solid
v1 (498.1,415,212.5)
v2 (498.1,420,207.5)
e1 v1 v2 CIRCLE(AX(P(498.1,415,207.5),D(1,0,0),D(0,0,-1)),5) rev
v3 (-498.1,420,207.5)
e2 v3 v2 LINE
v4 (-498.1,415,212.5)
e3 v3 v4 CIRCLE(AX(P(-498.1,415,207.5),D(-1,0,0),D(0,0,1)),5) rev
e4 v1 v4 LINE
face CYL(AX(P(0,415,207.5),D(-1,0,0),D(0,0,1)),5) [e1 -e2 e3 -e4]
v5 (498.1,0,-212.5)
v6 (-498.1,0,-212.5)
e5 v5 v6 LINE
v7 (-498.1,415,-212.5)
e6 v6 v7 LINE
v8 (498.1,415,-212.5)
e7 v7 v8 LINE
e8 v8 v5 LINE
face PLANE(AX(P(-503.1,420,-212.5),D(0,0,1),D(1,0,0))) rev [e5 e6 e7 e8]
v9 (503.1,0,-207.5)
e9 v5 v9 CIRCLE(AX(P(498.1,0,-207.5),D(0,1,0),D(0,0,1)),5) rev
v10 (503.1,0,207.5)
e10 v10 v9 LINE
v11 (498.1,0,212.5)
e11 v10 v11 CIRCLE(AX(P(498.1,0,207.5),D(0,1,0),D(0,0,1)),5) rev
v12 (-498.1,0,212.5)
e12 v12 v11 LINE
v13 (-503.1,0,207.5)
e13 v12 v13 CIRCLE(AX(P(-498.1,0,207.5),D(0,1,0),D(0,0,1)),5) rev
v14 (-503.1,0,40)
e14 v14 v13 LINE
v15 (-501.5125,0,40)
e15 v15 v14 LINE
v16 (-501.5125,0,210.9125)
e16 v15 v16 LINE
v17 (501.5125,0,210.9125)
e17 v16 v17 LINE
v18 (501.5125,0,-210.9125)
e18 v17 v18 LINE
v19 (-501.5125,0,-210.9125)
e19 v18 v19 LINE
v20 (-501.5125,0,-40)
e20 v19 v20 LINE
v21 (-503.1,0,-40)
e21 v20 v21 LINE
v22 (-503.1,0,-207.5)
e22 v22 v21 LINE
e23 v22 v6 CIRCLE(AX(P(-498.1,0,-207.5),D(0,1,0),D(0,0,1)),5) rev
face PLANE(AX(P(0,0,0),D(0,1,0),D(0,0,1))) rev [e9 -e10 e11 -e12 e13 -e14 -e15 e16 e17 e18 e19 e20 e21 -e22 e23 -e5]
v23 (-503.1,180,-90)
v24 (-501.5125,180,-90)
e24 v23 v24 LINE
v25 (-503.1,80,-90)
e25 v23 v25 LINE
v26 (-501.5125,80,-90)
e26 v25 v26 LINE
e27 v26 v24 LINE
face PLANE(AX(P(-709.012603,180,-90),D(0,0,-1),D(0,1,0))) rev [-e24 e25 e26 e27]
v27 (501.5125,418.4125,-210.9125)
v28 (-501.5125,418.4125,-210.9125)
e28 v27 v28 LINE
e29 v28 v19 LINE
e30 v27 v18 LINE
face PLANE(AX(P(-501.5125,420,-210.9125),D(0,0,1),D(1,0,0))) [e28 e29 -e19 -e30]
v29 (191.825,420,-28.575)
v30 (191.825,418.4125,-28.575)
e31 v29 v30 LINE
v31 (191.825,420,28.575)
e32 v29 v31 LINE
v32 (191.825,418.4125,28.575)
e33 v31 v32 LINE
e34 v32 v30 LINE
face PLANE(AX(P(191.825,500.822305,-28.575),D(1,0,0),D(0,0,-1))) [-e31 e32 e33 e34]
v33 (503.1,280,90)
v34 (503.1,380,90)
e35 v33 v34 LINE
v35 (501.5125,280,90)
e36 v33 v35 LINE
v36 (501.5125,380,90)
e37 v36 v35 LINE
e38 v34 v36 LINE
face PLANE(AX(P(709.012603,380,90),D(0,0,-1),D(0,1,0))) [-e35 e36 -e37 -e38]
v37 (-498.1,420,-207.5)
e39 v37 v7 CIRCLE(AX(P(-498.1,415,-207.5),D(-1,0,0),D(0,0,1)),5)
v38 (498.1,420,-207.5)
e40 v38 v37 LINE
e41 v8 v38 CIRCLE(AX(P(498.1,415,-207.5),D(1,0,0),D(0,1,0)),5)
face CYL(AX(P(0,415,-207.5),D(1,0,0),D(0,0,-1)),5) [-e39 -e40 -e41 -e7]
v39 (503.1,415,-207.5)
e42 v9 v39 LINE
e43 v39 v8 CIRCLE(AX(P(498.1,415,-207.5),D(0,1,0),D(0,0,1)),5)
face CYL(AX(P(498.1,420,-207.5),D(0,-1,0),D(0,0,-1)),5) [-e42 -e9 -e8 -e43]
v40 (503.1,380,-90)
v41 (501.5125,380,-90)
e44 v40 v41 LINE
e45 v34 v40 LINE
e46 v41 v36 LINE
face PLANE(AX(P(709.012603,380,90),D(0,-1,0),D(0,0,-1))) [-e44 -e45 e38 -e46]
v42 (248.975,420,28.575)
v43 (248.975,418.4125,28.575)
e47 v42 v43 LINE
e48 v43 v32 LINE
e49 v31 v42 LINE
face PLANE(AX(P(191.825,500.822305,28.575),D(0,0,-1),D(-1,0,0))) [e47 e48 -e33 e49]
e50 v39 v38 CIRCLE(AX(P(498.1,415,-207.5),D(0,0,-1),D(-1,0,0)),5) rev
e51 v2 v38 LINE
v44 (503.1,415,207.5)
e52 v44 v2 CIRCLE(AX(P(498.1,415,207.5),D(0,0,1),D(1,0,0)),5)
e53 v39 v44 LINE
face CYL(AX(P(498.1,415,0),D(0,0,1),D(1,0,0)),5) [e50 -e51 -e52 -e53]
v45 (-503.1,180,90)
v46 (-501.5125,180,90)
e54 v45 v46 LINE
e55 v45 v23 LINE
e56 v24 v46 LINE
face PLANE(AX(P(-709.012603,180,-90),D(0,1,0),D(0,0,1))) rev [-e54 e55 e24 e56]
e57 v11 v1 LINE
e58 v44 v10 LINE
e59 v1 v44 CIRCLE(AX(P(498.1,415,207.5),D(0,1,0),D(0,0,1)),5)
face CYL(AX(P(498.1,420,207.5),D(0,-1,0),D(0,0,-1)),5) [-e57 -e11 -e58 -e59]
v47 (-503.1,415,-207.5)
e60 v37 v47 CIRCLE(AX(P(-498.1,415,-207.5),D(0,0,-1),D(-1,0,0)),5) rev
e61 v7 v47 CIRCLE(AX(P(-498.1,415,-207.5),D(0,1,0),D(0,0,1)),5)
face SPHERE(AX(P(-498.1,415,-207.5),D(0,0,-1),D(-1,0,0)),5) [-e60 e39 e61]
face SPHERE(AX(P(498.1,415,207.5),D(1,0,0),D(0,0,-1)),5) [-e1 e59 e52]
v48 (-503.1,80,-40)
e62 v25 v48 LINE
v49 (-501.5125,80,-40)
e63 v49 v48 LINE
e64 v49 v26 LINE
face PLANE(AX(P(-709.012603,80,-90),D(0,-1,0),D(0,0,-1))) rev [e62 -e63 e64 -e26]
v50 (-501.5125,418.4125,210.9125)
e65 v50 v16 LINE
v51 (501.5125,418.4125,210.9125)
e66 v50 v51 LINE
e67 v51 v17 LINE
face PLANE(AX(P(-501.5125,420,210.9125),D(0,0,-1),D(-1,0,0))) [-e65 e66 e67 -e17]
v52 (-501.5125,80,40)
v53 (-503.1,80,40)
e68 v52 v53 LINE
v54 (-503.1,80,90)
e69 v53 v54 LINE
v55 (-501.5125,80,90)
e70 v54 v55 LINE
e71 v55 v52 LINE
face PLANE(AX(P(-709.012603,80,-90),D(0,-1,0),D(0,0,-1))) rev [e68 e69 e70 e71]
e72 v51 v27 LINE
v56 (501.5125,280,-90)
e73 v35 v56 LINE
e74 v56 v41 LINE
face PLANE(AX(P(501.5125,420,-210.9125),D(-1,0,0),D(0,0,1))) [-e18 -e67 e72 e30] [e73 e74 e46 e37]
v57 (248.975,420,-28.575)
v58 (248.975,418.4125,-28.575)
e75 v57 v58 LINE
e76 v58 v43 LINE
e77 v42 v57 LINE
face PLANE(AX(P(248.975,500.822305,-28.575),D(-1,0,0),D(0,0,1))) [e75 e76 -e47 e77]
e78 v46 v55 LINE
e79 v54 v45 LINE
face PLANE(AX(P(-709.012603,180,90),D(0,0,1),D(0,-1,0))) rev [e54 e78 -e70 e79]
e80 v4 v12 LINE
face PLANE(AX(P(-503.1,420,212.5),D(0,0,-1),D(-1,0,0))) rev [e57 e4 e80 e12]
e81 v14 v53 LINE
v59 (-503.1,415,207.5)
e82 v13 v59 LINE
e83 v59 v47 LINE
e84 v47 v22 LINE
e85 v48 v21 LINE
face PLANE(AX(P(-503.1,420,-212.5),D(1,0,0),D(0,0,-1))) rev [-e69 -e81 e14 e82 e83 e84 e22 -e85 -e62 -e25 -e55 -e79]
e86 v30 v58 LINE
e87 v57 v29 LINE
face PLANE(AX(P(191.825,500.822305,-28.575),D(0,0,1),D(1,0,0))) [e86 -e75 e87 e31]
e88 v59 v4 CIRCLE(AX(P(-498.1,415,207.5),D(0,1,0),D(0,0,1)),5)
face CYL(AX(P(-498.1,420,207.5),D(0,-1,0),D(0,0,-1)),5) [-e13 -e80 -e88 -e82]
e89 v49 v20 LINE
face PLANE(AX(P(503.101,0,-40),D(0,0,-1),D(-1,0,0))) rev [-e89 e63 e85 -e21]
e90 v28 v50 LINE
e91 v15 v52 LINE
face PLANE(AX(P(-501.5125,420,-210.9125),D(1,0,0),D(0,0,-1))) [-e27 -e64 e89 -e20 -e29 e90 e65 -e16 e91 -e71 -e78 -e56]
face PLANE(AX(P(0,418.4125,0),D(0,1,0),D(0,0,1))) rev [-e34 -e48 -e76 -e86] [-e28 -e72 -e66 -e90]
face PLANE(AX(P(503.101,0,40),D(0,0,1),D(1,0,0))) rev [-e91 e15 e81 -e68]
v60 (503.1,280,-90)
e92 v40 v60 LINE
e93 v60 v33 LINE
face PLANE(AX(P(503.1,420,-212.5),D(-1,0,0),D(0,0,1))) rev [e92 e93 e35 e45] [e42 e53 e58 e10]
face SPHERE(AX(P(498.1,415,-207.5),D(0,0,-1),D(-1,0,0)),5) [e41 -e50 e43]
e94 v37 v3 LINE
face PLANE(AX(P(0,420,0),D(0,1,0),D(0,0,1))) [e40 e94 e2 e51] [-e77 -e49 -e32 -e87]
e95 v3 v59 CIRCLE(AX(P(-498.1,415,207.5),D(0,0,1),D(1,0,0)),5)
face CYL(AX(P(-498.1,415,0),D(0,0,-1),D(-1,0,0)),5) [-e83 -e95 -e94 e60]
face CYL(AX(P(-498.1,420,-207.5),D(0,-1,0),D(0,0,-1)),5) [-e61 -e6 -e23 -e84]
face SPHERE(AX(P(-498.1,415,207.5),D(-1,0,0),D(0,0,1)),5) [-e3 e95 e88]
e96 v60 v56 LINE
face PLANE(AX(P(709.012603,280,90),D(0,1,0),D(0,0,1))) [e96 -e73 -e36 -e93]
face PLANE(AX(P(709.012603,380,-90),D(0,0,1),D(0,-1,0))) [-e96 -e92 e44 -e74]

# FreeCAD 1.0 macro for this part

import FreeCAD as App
import Part
import Sketcher
from FreeCAD import Vector


def edges_at(feature, points):
    """Names of the edges that pass closest to the given points."""
    edges = feature.Shape.Edges
    near = lambda p: min(range(len(edges)), key=lambda i: edges[i].distToShape(Part.Vertex(*p))[0])
    return sorted({f"Edge{near(p) + 1}" for p in points})


def add_polygon(sketch, points):
    """Adds a closed chain of lines whose ends are joined by coincident constraints."""
    first, n = sketch.GeometryCount, len(points)
    for a, b in zip(points, points[1:] + points[:1]):
        sketch.addGeometry(Part.LineSegment(App.Vector(*a, 0), App.Vector(*b, 0)), False)
    for i in range(n):
        sketch.addConstraint(Sketcher.Constraint("Coincident", first + i, 2, first + (i + 1) % n, 1))

doc = App.newDocument("Part")
body = doc.addObject("PartDesign::Body", "Body")

# Sketch on XZ plane
sketch1 = body.newObject("Sketcher::SketchObject", "Sketch")
sketch1.AttachmentSupport = (doc.getObject("XZ_Plane"), [""])
sketch1.MapMode = "FlatFace"
add_polygon(sketch1, [(-503, -212), (-503, 212), (503, 212), (503, -212)])  # lines 0-3
add_polygon(sketch1, [(502, 211), (-502, 211), (-502, -211), (502, -211)])  # lines 4-7
sketch1.addConstraint(Sketcher.Constraint("Vertical", 0))
sketch1.addConstraint(Sketcher.Constraint("Horizontal", 1))
sketch1.addConstraint(Sketcher.Constraint("Vertical", 2))
sketch1.addConstraint(Sketcher.Constraint("Horizontal", 3))
sketch1.addConstraint(Sketcher.Constraint("Horizontal", 4))
sketch1.addConstraint(Sketcher.Constraint("Vertical", 5))
sketch1.addConstraint(Sketcher.Constraint("Horizontal", 6))
sketch1.addConstraint(Sketcher.Constraint("Vertical", 7))
sketch1.addConstraint(Sketcher.Constraint("Symmetric", 0, 2, 2, 2, -1, 1))
sketch1.addConstraint(Sketcher.Constraint("Symmetric", 4, 2, 6, 2, -1, 1))
sketch1.addConstraint(Sketcher.Constraint("DistanceY", 0, 1, 0, 2, 425.0))
sketch1.addConstraint(Sketcher.Constraint("DistanceX", 1, 1, 1, 2, 1006.2))
sketch1.addConstraint(Sketcher.Constraint("DistanceX", 4, 2, 4, 1, 1003.025))
sketch1.addConstraint(Sketcher.Constraint("DistanceY", 5, 2, 5, 1, 421.825))
pad1 = body.newObject("PartDesign::Pad", "Pad")
pad1.Profile = sketch1
pad1.Length = 420
pad1.Reversed = True

# Sketch on XZ plane
sketch2 = body.newObject("Sketcher::SketchObject", "Sketch001")
sketch2.AttachmentSupport = (doc.getObject("XZ_Plane"), [""])
sketch2.MapMode = "FlatFace"
sketch2.AttachmentOffset = App.Placement(Vector(0, 0, -420), App.Rotation())
add_polygon(sketch2, [(-503, -212), (-503, 212), (503, 212), (503, -212)])  # lines 0-3
sketch2.addConstraint(Sketcher.Constraint("Vertical", 0))
sketch2.addConstraint(Sketcher.Constraint("Horizontal", 1))
sketch2.addConstraint(Sketcher.Constraint("Vertical", 2))
sketch2.addConstraint(Sketcher.Constraint("Horizontal", 3))
sketch2.addConstraint(Sketcher.Constraint("Symmetric", 0, 2, 2, 2, -1, 1))
sketch2.addConstraint(Sketcher.Constraint("DistanceY", 0, 1, 0, 2, 425.0))
sketch2.addConstraint(Sketcher.Constraint("DistanceX", 1, 1, 1, 2, 1006.2))
pad2 = body.newObject("PartDesign::Pad", "Pad001")
pad2.Profile = sketch2
pad2.Length = 1.5875
doc.recompute()

fillet = body.newObject("PartDesign::Fillet", "Fillet")
fillet.Base = (pad2, edges_at(pad2, [
    (-503.1, 420, 0),
    (0, 420, 212.5),
    (503.1, 420, 0),
    (503.1, 210, 212.5),
    (-503.1, 210, 212.5),
    (-503.1, 210, -212.5),
    (503.1, 210, -212.5),
    (0, 420, -212.5),
]))
fillet.Radius = 5

# Sketch on YZ plane
sketch3 = body.newObject("Sketcher::SketchObject", "Sketch002")
sketch3.AttachmentSupport = (doc.getObject("YZ_Plane"), [""])
sketch3.MapMode = "FlatFace"
sketch3.AttachmentOffset = App.Placement(Vector(0, 0, -503.1), App.Rotation())
add_polygon(sketch3, [(80, -40), (0, -40), (0, 40), (80, 40)])  # lines 0-3
sketch3.addConstraint(Sketcher.Constraint("Horizontal", 0))
sketch3.addConstraint(Sketcher.Constraint("Vertical", 1))
sketch3.addConstraint(Sketcher.Constraint("Horizontal", 2))
sketch3.addConstraint(Sketcher.Constraint("Vertical", 3))
sketch3.addConstraint(Sketcher.Constraint("Symmetric", 0, 2, 1, 2, -1, 1))
sketch3.addConstraint(Sketcher.Constraint("Equal", 2, 1))
sketch3.addConstraint(Sketcher.Constraint("DistanceX", 0, 2, 0, 1, 80.0))
pocket1 = body.newObject("PartDesign::Pocket", "Pocket")
pocket1.Profile = sketch3
pocket1.Type = "UpToFirst"
pocket1.Reversed = True

# Sketch on XZ plane
sketch4 = body.newObject("Sketcher::SketchObject", "Sketch003")
sketch4.AttachmentSupport = (doc.getObject("XZ_Plane"), [""])
sketch4.MapMode = "FlatFace"
add_polygon(sketch4, [(192, -29), (192, 29), (249, 29), (249, -29)])  # lines 0-3
sketch4.addConstraint(Sketcher.Constraint("Vertical", 0))
sketch4.addConstraint(Sketcher.Constraint("Horizontal", 1))
sketch4.addConstraint(Sketcher.Constraint("Vertical", 2))
sketch4.addConstraint(Sketcher.Constraint("Horizontal", 3))
sketch4.addConstraint(Sketcher.Constraint("Equal", 3, 0))
sketch4.addConstraint(Sketcher.Constraint("DistanceX", 1, 1, 1, 2, 57.15))
sketch4.addConstraint(Sketcher.Constraint("DistanceX", -1, 1, 0, 2, 191.825))
sketch4.addConstraint(Sketcher.Constraint("DistanceY", -1, 1, 0, 2, 28.575))
pocket2 = body.newObject("PartDesign::Pocket", "Pocket001")
pocket2.Profile = sketch4
pocket2.Length = 420

# Sketch on YZ plane
sketch5 = body.newObject("Sketcher::SketchObject", "Sketch004")
sketch5.AttachmentSupport = (doc.getObject("YZ_Plane"), [""])
sketch5.MapMode = "FlatFace"
add_polygon(sketch5, [(380, 90), (280, 90), (280, -90), (380, -90)])  # lines 0-3
sketch5.addConstraint(Sketcher.Constraint("Horizontal", 0))
sketch5.addConstraint(Sketcher.Constraint("Vertical", 1))
sketch5.addConstraint(Sketcher.Constraint("Horizontal", 2))
sketch5.addConstraint(Sketcher.Constraint("Vertical", 3))
sketch5.addConstraint(Sketcher.Constraint("DistanceX", 0, 2, 0, 1, 100.0))
sketch5.addConstraint(Sketcher.Constraint("DistanceY", 1, 2, 1, 1, 180.0))
sketch5.addConstraint(Sketcher.Constraint("DistanceX", -1, 1, 0, 2, 280.0))
sketch5.addConstraint(Sketcher.Constraint("DistanceY", -1, 1, 0, 2, 90.0))
pocket3 = body.newObject("PartDesign::Pocket", "Pocket002")
pocket3.Profile = sketch5
pocket3.Length = 503.1
pocket3.Reversed = True

# Sketch on YZ plane
sketch6 = body.newObject("Sketcher::SketchObject", "Sketch005")
sketch6.AttachmentSupport = (doc.getObject("YZ_Plane"), [""])
sketch6.MapMode = "FlatFace"
add_polygon(sketch6, [(180, 90), (80, 90), (80, -90), (180, -90)])  # lines 0-3
sketch6.addConstraint(Sketcher.Constraint("Horizontal", 0))
sketch6.addConstraint(Sketcher.Constraint("Vertical", 1))
sketch6.addConstraint(Sketcher.Constraint("Horizontal", 2))
sketch6.addConstraint(Sketcher.Constraint("Vertical", 3))
sketch6.addConstraint(Sketcher.Constraint("DistanceX", 0, 2, 0, 1, 100.0))
sketch6.addConstraint(Sketcher.Constraint("DistanceY", 1, 2, 1, 1, 180.0))
sketch6.addConstraint(Sketcher.Constraint("DistanceX", -1, 1, 0, 2, 80.0))
sketch6.addConstraint(Sketcher.Constraint("DistanceY", -1, 1, 0, 2, 90.0))
pocket4 = body.newObject("PartDesign::Pocket", "Pocket003")
pocket4.Profile = sketch6
pocket4.Length = 503.1

doc.recompute()
